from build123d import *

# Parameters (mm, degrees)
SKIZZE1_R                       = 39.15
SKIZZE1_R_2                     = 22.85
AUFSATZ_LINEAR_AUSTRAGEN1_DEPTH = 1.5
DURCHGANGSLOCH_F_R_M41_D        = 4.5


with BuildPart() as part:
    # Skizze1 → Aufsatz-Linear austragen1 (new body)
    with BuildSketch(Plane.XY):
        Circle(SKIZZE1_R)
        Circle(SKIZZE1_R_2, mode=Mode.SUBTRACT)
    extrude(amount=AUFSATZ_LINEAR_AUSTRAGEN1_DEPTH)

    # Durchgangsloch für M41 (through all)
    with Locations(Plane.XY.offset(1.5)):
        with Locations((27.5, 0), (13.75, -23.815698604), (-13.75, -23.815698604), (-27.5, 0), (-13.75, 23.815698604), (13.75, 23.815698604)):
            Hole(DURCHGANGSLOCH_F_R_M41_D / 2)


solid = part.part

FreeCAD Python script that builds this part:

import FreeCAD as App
import Part
import Sketcher
from FreeCAD import Vector

doc = App.newDocument("Part")
body = doc.addObject("PartDesign::Body", "Body")

# Sketch on XY plane
sketch1 = body.newObject("Sketcher::SketchObject", "Sketch")
sketch1.AttachmentSupport = (doc.getObject("XY_Plane"), [""])
sketch1.MapMode = "FlatFace"
sketch1.addGeometry(Part.Circle(Vector(0, 0, 0), Vector(0, 0, 1), 39), False)
sketch1.addGeometry(Part.Circle(Vector(0, 0, 0), Vector(0, 0, 1), 23), False)
sketch1.addConstraint(Sketcher.Constraint("Coincident", 0, 3, -1, 1))
sketch1.addConstraint(Sketcher.Constraint("Coincident", 1, 3, -1, 1))
sketch1.addConstraint(Sketcher.Constraint("Diameter", 0, 78.3))
sketch1.addConstraint(Sketcher.Constraint("Diameter", 1, 45.7))
pad1 = body.newObject("PartDesign::Pad", "Pad")
pad1.Profile = sketch1
pad1.Length = 1.5

# Sketch on XY plane
sketch2 = body.newObject("Sketcher::SketchObject", "Sketch001")
sketch2.AttachmentSupport = (doc.getObject("XY_Plane"), [""])
sketch2.MapMode = "FlatFace"
sketch2.AttachmentOffset = App.Placement(Vector(0, 0, 1.5), App.Rotation())
sketch2.addGeometry(Part.Circle(Vector(27.5, 0, 0), Vector(0, 0, 1), 2.2), False)
sketch2.addGeometry(Part.Circle(Vector(13.8, -23.8, 0), Vector(0, 0, 1), 2.2), False)
sketch2.addGeometry(Part.Circle(Vector(-13.8, -23.8, 0), Vector(0, 0, 1), 2.2), False)
sketch2.addGeometry(Part.Circle(Vector(-27.5, 0, 0), Vector(0, 0, 1), 2.2), False)
sketch2.addGeometry(Part.Circle(Vector(-13.8, 23.8, 0), Vector(0, 0, 1), 2.2), False)
sketch2.addGeometry(Part.Circle(Vector(13.8, 23.8, 0), Vector(0, 0, 1), 2.2), False)
sketch2.addConstraint(Sketcher.Constraint("Equal", 0, 1))
sketch2.addConstraint(Sketcher.Constraint("Equal", 1, 2))
sketch2.addConstraint(Sketcher.Constraint("Equal", 2, 3))
sketch2.addConstraint(Sketcher.Constraint("Equal", 3, 4))
sketch2.addConstraint(Sketcher.Constraint("Equal", 4, 5))
sketch2.addConstraint(Sketcher.Constraint("Symmetric", 0, 3, 3, 3, -1, 1))
sketch2.addConstraint(Sketcher.Constraint("Symmetric", 1, 3, 4, 3, -1, 1))
sketch2.addConstraint(Sketcher.Constraint("Symmetric", 2, 3, 5, 3, -1, 1))
sketch2.addConstraint(Sketcher.Constraint("Symmetric", 1, 3, 2, 3, -2))
sketch2.addConstraint(Sketcher.Constraint("PointOnObject", 0, 3, -1))
sketch2.addConstraint(Sketcher.Constraint("Diameter", 0, 4.5))
sketch2.addConstraint(Sketcher.Constraint("DistanceX", 3, 3, 0, 3, 55.0))
sketch2.addConstraint(Sketcher.Constraint("DistanceX", 2, 3, 1, 3, 27.5))
sketch2.addConstraint(Sketcher.Constraint("DistanceY", 1, 3, -1, 1, 23.815699))
doc.recompute()
hole = body.newObject("PartDesign::Hole", "Hole")
hole.Profile = sketch2
hole.ThreadType = "None"
hole.Diameter = 4.5
hole.DepthType = "ThroughAll"

doc.recompute()
